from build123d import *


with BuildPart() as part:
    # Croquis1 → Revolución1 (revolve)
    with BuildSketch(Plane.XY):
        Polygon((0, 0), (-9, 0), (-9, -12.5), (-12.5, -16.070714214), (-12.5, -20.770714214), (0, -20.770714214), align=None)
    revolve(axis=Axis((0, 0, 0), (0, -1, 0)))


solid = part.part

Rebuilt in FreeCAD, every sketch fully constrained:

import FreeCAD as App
import Part
import Sketcher
Q = App.Units.Quantity


def add_polygon(sketch, points):
    """Adds a closed chain of lines whose ends are joined by coincident constraints."""
    first, n = sketch.GeometryCount, len(points)
    for a, b in zip(points, points[1:] + points[:1]):
        sketch.addGeometry(Part.LineSegment(App.Vector(*a, 0), App.Vector(*b, 0)), False)
    for i in range(n):
        sketch.addConstraint(Sketcher.Constraint("Coincident", first + i, 2, first + (i + 1) % n, 1))

doc = App.newDocument("Part")
body = doc.addObject("PartDesign::Body", "Body")

# Sketch on XY plane
sketch1 = doc.addObject("Sketcher::SketchObject", "Sketch")
body.addObject(sketch1)
sketch1.AttachmentSupport = (doc.XY_Plane, [""])
sketch1.MapMode = "FlatFace"
add_polygon(sketch1, [(0, 0), (-9, 0), (-9, -12.5), (-12.5, -16.070714), (-12.5, -20.770714), (0, -20.770714)])  # lines 0-5
sketch1.addConstraint([
    Sketcher.Constraint("Horizontal", 0),
    Sketcher.Constraint("Vertical", 1),
    Sketcher.Constraint("Vertical", 3),
    Sketcher.Constraint("Horizontal", 4),
    Sketcher.Constraint("Vertical", 5),
    Sketcher.Constraint("Coincident", 5, 2, -1, 1),
    Sketcher.Constraint("Equal", 4, 1),
    Sketcher.Constraint("DistanceX", 0, 2, 0, 1, Q("9 mm")),
    Sketcher.Constraint("Distance", 2, Q("5 mm")),
    Sketcher.Constraint("DistanceX", 4, 1, 4, 2, Q("12.5 mm")),
    Sketcher.Constraint("DistanceY", 3, 2, 3, 1, Q("4.7 mm")),
])
revolution = doc.addObject("PartDesign::Revolution", "Revolution")
body.addObject(revolution)
revolution.Profile = sketch1
revolution.ReferenceAxis = (sketch1, ["V_Axis"])
revolution.Angle = 360

doc.recompute()
